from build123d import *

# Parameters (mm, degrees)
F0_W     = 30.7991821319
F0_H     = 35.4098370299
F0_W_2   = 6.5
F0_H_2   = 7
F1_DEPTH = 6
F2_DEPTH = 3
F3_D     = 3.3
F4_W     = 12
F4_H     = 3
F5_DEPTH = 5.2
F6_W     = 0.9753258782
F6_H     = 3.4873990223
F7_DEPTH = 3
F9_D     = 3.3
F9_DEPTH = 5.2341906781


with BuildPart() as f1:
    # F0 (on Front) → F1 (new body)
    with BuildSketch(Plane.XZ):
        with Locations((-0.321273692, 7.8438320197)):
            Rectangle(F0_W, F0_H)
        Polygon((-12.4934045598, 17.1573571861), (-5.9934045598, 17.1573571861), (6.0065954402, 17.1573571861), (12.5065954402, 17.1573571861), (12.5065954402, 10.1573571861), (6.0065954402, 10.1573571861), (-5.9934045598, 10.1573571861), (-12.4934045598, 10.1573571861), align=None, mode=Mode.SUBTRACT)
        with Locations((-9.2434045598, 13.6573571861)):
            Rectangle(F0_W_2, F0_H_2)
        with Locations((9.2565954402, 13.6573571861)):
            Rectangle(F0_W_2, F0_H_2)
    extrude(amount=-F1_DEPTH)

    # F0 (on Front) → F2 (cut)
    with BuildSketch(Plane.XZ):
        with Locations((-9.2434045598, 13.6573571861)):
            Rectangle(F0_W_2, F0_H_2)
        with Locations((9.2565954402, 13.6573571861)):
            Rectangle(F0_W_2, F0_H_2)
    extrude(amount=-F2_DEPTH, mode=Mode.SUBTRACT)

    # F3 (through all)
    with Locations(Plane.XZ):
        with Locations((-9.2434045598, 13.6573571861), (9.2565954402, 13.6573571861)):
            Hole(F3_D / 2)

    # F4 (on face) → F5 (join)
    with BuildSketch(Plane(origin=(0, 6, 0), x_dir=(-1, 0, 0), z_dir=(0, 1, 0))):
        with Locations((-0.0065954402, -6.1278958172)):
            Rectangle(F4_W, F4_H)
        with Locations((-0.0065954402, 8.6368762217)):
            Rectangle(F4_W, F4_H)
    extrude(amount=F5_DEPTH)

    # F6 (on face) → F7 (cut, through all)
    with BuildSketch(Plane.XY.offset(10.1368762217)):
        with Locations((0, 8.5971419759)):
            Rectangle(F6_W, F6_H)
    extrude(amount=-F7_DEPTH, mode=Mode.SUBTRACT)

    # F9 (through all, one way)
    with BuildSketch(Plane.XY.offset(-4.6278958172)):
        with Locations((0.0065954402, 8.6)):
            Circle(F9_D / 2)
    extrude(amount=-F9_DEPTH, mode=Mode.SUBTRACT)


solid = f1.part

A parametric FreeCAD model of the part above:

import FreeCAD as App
import Part
import Sketcher
from FreeCAD import Vector
Q = App.Units.Quantity

doc = App.newDocument("Part")
body = doc.addObject("PartDesign::Body", "Body")

# Sketch on XZ plane
sketch1 = body.newObject("Sketcher::SketchObject", "Sketch")
sketch1.AttachmentSupport = (doc.getObject("XZ_Plane"), [""])
sketch1.MapMode = "FlatFace"
sketch1.addGeometry([
    Part.LineSegment(Vector(-16, 26, 0), Vector(-16, -10, 0)),  # 0
    Part.LineSegment(Vector(-16, -10, 0), Vector(15, -10, 0)),  # 1
    Part.LineSegment(Vector(15, -10, 0), Vector(15, 26, 0)),  # 2
    Part.LineSegment(Vector(15, 26, 0), Vector(-16, 26, 0)),  # 3
    Part.LineSegment(Vector(-6, 17, 0), Vector(6, 17, 0)),  # 4
    Part.LineSegment(Vector(6, 17, 0), Vector(6, 10, 0)),  # 5
    Part.LineSegment(Vector(6, 10, 0), Vector(-6, 10, 0)),  # 6
    Part.LineSegment(Vector(-6, 10, 0), Vector(-6, 17, 0)),  # 7
], False)
sketch1.addConstraint([
    Sketcher.Constraint("Coincident", 0, 2, 1, 1),
    Sketcher.Constraint("Coincident", 1, 2, 2, 1),
    Sketcher.Constraint("Coincident", 2, 2, 3, 1),
    Sketcher.Constraint("Coincident", 3, 2, 0, 1),
    Sketcher.Constraint("Coincident", 4, 2, 5, 1),
    Sketcher.Constraint("Coincident", 5, 2, 6, 1),
    Sketcher.Constraint("Coincident", 6, 2, 7, 1),
    Sketcher.Constraint("Coincident", 7, 2, 4, 1),
    Sketcher.Constraint("Vertical", 0),
    Sketcher.Constraint("Horizontal", 1),
    Sketcher.Constraint("Vertical", 2),
    Sketcher.Constraint("Horizontal", 3),
    Sketcher.Constraint("Horizontal", 4),
    Sketcher.Constraint("Vertical", 5),
    Sketcher.Constraint("Horizontal", 6),
    Sketcher.Constraint("Vertical", 7),
    Sketcher.Constraint("DistanceX", 4, 1, 4, 2, Q("12 mm")),
    Sketcher.Constraint("DistanceY", 5, 2, 5, 1, Q("7 mm")),
    Sketcher.Constraint("DistanceX", 1, 1, 1, 2, Q("30.799182 mm")),
    Sketcher.Constraint("DistanceY", 0, 2, 0, 1, Q("35.409837 mm")),
    Sketcher.Constraint("DistanceY", -1, 1, 2, 2, Q("25.548751 mm")),
    Sketcher.Constraint("DistanceX", 4, 2, 2, 2, Q("9.071722 mm")),
    Sketcher.Constraint("DistanceX", 0, 2, -1, 1, Q("15.720865 mm")),
    Sketcher.Constraint("DistanceY", -1, 1, 4, 2, Q("17.157357 mm")),
])
pad1 = body.newObject("PartDesign::Pad", "Pad")
pad1.Profile = sketch1
pad1.Length = 6
pad1.Reversed = True

# Sketch on XZ plane
sketch2 = body.newObject("Sketcher::SketchObject", "Sketch001")
sketch2.AttachmentSupport = (doc.getObject("XZ_Plane"), [""])
sketch2.MapMode = "FlatFace"
sketch2.addGeometry([
    Part.LineSegment(Vector(-12, 17, 0), Vector(-12, 10, 0)),  # 0
    Part.LineSegment(Vector(-12, 10, 0), Vector(-6, 10, 0)),  # 1
    Part.LineSegment(Vector(-6, 10, 0), Vector(-6, 17, 0)),  # 2
    Part.LineSegment(Vector(-6, 17, 0), Vector(-12, 17, 0)),  # 3
    Part.LineSegment(Vector(6, 17, 0), Vector(6, 10, 0)),  # 4
    Part.LineSegment(Vector(6, 10, 0), Vector(13, 10, 0)),  # 5
    Part.LineSegment(Vector(13, 10, 0), Vector(13, 17, 0)),  # 6
    Part.LineSegment(Vector(13, 17, 0), Vector(6, 17, 0)),  # 7
], False)
sketch2.addConstraint([
    Sketcher.Constraint("Coincident", 0, 2, 1, 1),
    Sketcher.Constraint("Coincident", 1, 2, 2, 1),
    Sketcher.Constraint("Coincident", 2, 2, 3, 1),
    Sketcher.Constraint("Coincident", 3, 2, 0, 1),
    Sketcher.Constraint("Coincident", 4, 2, 5, 1),
    Sketcher.Constraint("Coincident", 5, 2, 6, 1),
    Sketcher.Constraint("Coincident", 6, 2, 7, 1),
    Sketcher.Constraint("Coincident", 7, 2, 4, 1),
    Sketcher.Constraint("Vertical", 0),
    Sketcher.Constraint("Horizontal", 1),
    Sketcher.Constraint("Vertical", 2),
    Sketcher.Constraint("Horizontal", 3),
    Sketcher.Constraint("Vertical", 4),
    Sketcher.Constraint("Horizontal", 5),
    Sketcher.Constraint("Vertical", 6),
    Sketcher.Constraint("Horizontal", 7),
    Sketcher.Constraint("Horizontal", 1, 2, 4, 2),
    Sketcher.Constraint("Horizontal", 3, 2, 6, 2),
    Sketcher.Constraint("Equal", 3, 5),
    Sketcher.Constraint("DistanceY", 0, 2, 0, 1, Q("7 mm")),
    Sketcher.Constraint("DistanceX", 1, 1, 1, 2, Q("6.5 mm")),
    Sketcher.Constraint("DistanceX", 1, 2, 4, 2, Q("12 mm")),
    Sketcher.Constraint("DistanceX", 0, 2, -1, 1, Q("12.493405 mm")),
    Sketcher.Constraint("DistanceY", -1, 1, 0, 2, Q("10.157357 mm")),
])
pocket1 = body.newObject("PartDesign::Pocket", "Pocket")
pocket1.Profile = sketch2
pocket1.Length = 3

# Sketch on XZ plane
sketch3 = body.newObject("Sketcher::SketchObject", "Sketch002")
sketch3.AttachmentSupport = (doc.getObject("XZ_Plane"), [""])
sketch3.MapMode = "FlatFace"
sketch3.addGeometry([
    Part.Circle(Vector(-9.2, 13.7, 0), Vector(0, 0, 1), 1.6),
    Part.Circle(Vector(9.3, 13.7, 0), Vector(0, 0, 1), 1.6),
], False)
sketch3.addConstraint([
    Sketcher.Constraint("Equal", 0, 1),
    Sketcher.Constraint("Horizontal", 0, 3, 1, 3),
    Sketcher.Constraint("Diameter", 0, Q("3.3 mm")),
    Sketcher.Constraint("DistanceX", 0, 3, 1, 3, Q("18.5 mm")),
    Sketcher.Constraint("DistanceX", 0, 3, -1, 1, Q("9.243405 mm")),
    Sketcher.Constraint("DistanceY", -1, 1, 0, 3, Q("13.657357 mm")),
])
doc.recompute()
hole = body.newObject("PartDesign::Hole", "Hole")
hole.Profile = sketch3
hole.ThreadType = "None"
hole.Diameter = 3.3
hole.DepthType = "ThroughAll"

# Sketch on XZ plane
sketch4 = body.newObject("Sketcher::SketchObject", "Sketch003")
sketch4.AttachmentSupport = (doc.getObject("XZ_Plane"), [""])
sketch4.MapMode = "FlatFace"
sketch4.AttachmentOffset = App.Placement(Vector(0, 0, -6), App.Rotation())
sketch4.addGeometry([
    Part.LineSegment(Vector(6, -4.6, 0), Vector(6, -7.6, 0)),  # 0
    Part.LineSegment(Vector(6, -7.6, 0), Vector(-6, -7.6, 0)),  # 1
    Part.LineSegment(Vector(-6, -7.6, 0), Vector(-6, -4.6, 0)),  # 2
    Part.LineSegment(Vector(-6, -4.6, 0), Vector(6, -4.6, 0)),  # 3
    Part.LineSegment(Vector(6, 10.1, 0), Vector(6, 7.1, 0)),  # 4
    Part.LineSegment(Vector(6, 7.1, 0), Vector(-6, 7.1, 0)),  # 5
    Part.LineSegment(Vector(-6, 7.1, 0), Vector(-6, 10.1, 0)),  # 6
    Part.LineSegment(Vector(-6, 10.1, 0), Vector(6, 10.1, 0)),  # 7
], False)
sketch4.addConstraint([
    Sketcher.Constraint("Coincident", 0, 2, 1, 1),
    Sketcher.Constraint("Coincident", 1, 2, 2, 1),
    Sketcher.Constraint("Coincident", 2, 2, 3, 1),
    Sketcher.Constraint("Coincident", 3, 2, 0, 1),
    Sketcher.Constraint("Coincident", 4, 2, 5, 1),
    Sketcher.Constraint("Coincident", 5, 2, 6, 1),
    Sketcher.Constraint("Coincident", 6, 2, 7, 1),
    Sketcher.Constraint("Coincident", 7, 2, 4, 1),
    Sketcher.Constraint("Vertical", 0),
    Sketcher.Constraint("Horizontal", 1),
    Sketcher.Constraint("Vertical", 2),
    Sketcher.Constraint("Horizontal", 3),
    Sketcher.Constraint("Vertical", 4),
    Sketcher.Constraint("Horizontal", 5),
    Sketcher.Constraint("Vertical", 6),
    Sketcher.Constraint("Horizontal", 7),
    Sketcher.Constraint("Vertical", 3, 2, 4, 2),
    Sketcher.Constraint("Vertical", 2, 2, 5, 2),
    Sketcher.Constraint("Equal", 2, 4),
    Sketcher.Constraint("DistanceX", 1, 2, 1, 1, Q("12 mm")),
    Sketcher.Constraint("DistanceY", 0, 2, 0, 1, Q("3 mm")),
    Sketcher.Constraint("DistanceX", -1, 1, 0, 2, Q("6.006595 mm")),
    Sketcher.Constraint("DistanceY", 0, 2, -1, 1, Q("7.627896 mm")),
    Sketcher.Constraint("DistanceY", -1, 1, 4, 2, Q("7.136876 mm")),
])
pad2 = body.newObject("PartDesign::Pad", "Pad001")
pad2.Profile = sketch4
pad2.Length = 5.2
pad2.Reversed = True

# Sketch on XY plane
sketch5 = body.newObject("Sketcher::SketchObject", "Sketch004")
sketch5.AttachmentSupport = (doc.getObject("XY_Plane"), [""])
sketch5.MapMode = "FlatFace"
sketch5.AttachmentOffset = App.Placement(Vector(0, 0, 10.136876), App.Rotation())
sketch5.addGeometry([
    Part.LineSegment(Vector(-0.5, 10.3, 0), Vector(-0.5, 6.9, 0)),
    Part.LineSegment(Vector(-0.5, 6.9, 0), Vector(0.5, 6.9, 0)),
    Part.LineSegment(Vector(0.5, 6.9, 0), Vector(0.5, 10.3, 0)),
    Part.LineSegment(Vector(0.5, 10.3, 0), Vector(-0.5, 10.3, 0)),
], False)
sketch5.addConstraint([
    Sketcher.Constraint("Coincident", 0, 2, 1, 1),
    Sketcher.Constraint("Coincident", 1, 2, 2, 1),
    Sketcher.Constraint("Coincident", 2, 2, 3, 1),
    Sketcher.Constraint("Coincident", 3, 2, 0, 1),
    Sketcher.Constraint("Vertical", 0),
    Sketcher.Constraint("Horizontal", 1),
    Sketcher.Constraint("Vertical", 2),
    Sketcher.Constraint("Horizontal", 3),
    Sketcher.Constraint("DistanceY", 0, 2, 0, 1, Q("3.487399 mm")),
    Sketcher.Constraint("DistanceX", 1, 1, 1, 2, Q("0.975326 mm")),
    Sketcher.Constraint("DistanceY", -1, 1, 2, 2, Q("10.340841 mm")),
    Sketcher.Constraint("DistanceX", 0, 2, -1, 1, Q("0.487663 mm")),
])
pocket2 = body.newObject("PartDesign::Pocket", "Pocket001")
pocket2.Profile = sketch5
pocket2.Length = 3

# Sketch on XY plane
sketch6 = body.newObject("Sketcher::SketchObject", "Sketch005")
sketch6.AttachmentSupport = (doc.getObject("XY_Plane"), [""])
sketch6.MapMode = "FlatFace"
sketch6.AttachmentOffset = App.Placement(Vector(0, 0, -4.627896), App.Rotation())
sketch6.addGeometry(Part.Circle(Vector(0, 8.6, 0), Vector(0, 0, 1), 1.6), False)
sketch6.addConstraint([
    Sketcher.Constraint("Diameter", 0, Q("3.3 mm")),
    Sketcher.Constraint("DistanceY", -1, 1, 0, 3, Q("8.6 mm")),
    Sketcher.Constraint("DistanceX", -1, 1, 0, 3, Q("0.006595 mm")),
])
pocket3 = body.newObject("PartDesign::Pocket", "Pocket002")
pocket3.Profile = sketch6
pocket3.Type = "ThroughAll"

doc.recompute()
